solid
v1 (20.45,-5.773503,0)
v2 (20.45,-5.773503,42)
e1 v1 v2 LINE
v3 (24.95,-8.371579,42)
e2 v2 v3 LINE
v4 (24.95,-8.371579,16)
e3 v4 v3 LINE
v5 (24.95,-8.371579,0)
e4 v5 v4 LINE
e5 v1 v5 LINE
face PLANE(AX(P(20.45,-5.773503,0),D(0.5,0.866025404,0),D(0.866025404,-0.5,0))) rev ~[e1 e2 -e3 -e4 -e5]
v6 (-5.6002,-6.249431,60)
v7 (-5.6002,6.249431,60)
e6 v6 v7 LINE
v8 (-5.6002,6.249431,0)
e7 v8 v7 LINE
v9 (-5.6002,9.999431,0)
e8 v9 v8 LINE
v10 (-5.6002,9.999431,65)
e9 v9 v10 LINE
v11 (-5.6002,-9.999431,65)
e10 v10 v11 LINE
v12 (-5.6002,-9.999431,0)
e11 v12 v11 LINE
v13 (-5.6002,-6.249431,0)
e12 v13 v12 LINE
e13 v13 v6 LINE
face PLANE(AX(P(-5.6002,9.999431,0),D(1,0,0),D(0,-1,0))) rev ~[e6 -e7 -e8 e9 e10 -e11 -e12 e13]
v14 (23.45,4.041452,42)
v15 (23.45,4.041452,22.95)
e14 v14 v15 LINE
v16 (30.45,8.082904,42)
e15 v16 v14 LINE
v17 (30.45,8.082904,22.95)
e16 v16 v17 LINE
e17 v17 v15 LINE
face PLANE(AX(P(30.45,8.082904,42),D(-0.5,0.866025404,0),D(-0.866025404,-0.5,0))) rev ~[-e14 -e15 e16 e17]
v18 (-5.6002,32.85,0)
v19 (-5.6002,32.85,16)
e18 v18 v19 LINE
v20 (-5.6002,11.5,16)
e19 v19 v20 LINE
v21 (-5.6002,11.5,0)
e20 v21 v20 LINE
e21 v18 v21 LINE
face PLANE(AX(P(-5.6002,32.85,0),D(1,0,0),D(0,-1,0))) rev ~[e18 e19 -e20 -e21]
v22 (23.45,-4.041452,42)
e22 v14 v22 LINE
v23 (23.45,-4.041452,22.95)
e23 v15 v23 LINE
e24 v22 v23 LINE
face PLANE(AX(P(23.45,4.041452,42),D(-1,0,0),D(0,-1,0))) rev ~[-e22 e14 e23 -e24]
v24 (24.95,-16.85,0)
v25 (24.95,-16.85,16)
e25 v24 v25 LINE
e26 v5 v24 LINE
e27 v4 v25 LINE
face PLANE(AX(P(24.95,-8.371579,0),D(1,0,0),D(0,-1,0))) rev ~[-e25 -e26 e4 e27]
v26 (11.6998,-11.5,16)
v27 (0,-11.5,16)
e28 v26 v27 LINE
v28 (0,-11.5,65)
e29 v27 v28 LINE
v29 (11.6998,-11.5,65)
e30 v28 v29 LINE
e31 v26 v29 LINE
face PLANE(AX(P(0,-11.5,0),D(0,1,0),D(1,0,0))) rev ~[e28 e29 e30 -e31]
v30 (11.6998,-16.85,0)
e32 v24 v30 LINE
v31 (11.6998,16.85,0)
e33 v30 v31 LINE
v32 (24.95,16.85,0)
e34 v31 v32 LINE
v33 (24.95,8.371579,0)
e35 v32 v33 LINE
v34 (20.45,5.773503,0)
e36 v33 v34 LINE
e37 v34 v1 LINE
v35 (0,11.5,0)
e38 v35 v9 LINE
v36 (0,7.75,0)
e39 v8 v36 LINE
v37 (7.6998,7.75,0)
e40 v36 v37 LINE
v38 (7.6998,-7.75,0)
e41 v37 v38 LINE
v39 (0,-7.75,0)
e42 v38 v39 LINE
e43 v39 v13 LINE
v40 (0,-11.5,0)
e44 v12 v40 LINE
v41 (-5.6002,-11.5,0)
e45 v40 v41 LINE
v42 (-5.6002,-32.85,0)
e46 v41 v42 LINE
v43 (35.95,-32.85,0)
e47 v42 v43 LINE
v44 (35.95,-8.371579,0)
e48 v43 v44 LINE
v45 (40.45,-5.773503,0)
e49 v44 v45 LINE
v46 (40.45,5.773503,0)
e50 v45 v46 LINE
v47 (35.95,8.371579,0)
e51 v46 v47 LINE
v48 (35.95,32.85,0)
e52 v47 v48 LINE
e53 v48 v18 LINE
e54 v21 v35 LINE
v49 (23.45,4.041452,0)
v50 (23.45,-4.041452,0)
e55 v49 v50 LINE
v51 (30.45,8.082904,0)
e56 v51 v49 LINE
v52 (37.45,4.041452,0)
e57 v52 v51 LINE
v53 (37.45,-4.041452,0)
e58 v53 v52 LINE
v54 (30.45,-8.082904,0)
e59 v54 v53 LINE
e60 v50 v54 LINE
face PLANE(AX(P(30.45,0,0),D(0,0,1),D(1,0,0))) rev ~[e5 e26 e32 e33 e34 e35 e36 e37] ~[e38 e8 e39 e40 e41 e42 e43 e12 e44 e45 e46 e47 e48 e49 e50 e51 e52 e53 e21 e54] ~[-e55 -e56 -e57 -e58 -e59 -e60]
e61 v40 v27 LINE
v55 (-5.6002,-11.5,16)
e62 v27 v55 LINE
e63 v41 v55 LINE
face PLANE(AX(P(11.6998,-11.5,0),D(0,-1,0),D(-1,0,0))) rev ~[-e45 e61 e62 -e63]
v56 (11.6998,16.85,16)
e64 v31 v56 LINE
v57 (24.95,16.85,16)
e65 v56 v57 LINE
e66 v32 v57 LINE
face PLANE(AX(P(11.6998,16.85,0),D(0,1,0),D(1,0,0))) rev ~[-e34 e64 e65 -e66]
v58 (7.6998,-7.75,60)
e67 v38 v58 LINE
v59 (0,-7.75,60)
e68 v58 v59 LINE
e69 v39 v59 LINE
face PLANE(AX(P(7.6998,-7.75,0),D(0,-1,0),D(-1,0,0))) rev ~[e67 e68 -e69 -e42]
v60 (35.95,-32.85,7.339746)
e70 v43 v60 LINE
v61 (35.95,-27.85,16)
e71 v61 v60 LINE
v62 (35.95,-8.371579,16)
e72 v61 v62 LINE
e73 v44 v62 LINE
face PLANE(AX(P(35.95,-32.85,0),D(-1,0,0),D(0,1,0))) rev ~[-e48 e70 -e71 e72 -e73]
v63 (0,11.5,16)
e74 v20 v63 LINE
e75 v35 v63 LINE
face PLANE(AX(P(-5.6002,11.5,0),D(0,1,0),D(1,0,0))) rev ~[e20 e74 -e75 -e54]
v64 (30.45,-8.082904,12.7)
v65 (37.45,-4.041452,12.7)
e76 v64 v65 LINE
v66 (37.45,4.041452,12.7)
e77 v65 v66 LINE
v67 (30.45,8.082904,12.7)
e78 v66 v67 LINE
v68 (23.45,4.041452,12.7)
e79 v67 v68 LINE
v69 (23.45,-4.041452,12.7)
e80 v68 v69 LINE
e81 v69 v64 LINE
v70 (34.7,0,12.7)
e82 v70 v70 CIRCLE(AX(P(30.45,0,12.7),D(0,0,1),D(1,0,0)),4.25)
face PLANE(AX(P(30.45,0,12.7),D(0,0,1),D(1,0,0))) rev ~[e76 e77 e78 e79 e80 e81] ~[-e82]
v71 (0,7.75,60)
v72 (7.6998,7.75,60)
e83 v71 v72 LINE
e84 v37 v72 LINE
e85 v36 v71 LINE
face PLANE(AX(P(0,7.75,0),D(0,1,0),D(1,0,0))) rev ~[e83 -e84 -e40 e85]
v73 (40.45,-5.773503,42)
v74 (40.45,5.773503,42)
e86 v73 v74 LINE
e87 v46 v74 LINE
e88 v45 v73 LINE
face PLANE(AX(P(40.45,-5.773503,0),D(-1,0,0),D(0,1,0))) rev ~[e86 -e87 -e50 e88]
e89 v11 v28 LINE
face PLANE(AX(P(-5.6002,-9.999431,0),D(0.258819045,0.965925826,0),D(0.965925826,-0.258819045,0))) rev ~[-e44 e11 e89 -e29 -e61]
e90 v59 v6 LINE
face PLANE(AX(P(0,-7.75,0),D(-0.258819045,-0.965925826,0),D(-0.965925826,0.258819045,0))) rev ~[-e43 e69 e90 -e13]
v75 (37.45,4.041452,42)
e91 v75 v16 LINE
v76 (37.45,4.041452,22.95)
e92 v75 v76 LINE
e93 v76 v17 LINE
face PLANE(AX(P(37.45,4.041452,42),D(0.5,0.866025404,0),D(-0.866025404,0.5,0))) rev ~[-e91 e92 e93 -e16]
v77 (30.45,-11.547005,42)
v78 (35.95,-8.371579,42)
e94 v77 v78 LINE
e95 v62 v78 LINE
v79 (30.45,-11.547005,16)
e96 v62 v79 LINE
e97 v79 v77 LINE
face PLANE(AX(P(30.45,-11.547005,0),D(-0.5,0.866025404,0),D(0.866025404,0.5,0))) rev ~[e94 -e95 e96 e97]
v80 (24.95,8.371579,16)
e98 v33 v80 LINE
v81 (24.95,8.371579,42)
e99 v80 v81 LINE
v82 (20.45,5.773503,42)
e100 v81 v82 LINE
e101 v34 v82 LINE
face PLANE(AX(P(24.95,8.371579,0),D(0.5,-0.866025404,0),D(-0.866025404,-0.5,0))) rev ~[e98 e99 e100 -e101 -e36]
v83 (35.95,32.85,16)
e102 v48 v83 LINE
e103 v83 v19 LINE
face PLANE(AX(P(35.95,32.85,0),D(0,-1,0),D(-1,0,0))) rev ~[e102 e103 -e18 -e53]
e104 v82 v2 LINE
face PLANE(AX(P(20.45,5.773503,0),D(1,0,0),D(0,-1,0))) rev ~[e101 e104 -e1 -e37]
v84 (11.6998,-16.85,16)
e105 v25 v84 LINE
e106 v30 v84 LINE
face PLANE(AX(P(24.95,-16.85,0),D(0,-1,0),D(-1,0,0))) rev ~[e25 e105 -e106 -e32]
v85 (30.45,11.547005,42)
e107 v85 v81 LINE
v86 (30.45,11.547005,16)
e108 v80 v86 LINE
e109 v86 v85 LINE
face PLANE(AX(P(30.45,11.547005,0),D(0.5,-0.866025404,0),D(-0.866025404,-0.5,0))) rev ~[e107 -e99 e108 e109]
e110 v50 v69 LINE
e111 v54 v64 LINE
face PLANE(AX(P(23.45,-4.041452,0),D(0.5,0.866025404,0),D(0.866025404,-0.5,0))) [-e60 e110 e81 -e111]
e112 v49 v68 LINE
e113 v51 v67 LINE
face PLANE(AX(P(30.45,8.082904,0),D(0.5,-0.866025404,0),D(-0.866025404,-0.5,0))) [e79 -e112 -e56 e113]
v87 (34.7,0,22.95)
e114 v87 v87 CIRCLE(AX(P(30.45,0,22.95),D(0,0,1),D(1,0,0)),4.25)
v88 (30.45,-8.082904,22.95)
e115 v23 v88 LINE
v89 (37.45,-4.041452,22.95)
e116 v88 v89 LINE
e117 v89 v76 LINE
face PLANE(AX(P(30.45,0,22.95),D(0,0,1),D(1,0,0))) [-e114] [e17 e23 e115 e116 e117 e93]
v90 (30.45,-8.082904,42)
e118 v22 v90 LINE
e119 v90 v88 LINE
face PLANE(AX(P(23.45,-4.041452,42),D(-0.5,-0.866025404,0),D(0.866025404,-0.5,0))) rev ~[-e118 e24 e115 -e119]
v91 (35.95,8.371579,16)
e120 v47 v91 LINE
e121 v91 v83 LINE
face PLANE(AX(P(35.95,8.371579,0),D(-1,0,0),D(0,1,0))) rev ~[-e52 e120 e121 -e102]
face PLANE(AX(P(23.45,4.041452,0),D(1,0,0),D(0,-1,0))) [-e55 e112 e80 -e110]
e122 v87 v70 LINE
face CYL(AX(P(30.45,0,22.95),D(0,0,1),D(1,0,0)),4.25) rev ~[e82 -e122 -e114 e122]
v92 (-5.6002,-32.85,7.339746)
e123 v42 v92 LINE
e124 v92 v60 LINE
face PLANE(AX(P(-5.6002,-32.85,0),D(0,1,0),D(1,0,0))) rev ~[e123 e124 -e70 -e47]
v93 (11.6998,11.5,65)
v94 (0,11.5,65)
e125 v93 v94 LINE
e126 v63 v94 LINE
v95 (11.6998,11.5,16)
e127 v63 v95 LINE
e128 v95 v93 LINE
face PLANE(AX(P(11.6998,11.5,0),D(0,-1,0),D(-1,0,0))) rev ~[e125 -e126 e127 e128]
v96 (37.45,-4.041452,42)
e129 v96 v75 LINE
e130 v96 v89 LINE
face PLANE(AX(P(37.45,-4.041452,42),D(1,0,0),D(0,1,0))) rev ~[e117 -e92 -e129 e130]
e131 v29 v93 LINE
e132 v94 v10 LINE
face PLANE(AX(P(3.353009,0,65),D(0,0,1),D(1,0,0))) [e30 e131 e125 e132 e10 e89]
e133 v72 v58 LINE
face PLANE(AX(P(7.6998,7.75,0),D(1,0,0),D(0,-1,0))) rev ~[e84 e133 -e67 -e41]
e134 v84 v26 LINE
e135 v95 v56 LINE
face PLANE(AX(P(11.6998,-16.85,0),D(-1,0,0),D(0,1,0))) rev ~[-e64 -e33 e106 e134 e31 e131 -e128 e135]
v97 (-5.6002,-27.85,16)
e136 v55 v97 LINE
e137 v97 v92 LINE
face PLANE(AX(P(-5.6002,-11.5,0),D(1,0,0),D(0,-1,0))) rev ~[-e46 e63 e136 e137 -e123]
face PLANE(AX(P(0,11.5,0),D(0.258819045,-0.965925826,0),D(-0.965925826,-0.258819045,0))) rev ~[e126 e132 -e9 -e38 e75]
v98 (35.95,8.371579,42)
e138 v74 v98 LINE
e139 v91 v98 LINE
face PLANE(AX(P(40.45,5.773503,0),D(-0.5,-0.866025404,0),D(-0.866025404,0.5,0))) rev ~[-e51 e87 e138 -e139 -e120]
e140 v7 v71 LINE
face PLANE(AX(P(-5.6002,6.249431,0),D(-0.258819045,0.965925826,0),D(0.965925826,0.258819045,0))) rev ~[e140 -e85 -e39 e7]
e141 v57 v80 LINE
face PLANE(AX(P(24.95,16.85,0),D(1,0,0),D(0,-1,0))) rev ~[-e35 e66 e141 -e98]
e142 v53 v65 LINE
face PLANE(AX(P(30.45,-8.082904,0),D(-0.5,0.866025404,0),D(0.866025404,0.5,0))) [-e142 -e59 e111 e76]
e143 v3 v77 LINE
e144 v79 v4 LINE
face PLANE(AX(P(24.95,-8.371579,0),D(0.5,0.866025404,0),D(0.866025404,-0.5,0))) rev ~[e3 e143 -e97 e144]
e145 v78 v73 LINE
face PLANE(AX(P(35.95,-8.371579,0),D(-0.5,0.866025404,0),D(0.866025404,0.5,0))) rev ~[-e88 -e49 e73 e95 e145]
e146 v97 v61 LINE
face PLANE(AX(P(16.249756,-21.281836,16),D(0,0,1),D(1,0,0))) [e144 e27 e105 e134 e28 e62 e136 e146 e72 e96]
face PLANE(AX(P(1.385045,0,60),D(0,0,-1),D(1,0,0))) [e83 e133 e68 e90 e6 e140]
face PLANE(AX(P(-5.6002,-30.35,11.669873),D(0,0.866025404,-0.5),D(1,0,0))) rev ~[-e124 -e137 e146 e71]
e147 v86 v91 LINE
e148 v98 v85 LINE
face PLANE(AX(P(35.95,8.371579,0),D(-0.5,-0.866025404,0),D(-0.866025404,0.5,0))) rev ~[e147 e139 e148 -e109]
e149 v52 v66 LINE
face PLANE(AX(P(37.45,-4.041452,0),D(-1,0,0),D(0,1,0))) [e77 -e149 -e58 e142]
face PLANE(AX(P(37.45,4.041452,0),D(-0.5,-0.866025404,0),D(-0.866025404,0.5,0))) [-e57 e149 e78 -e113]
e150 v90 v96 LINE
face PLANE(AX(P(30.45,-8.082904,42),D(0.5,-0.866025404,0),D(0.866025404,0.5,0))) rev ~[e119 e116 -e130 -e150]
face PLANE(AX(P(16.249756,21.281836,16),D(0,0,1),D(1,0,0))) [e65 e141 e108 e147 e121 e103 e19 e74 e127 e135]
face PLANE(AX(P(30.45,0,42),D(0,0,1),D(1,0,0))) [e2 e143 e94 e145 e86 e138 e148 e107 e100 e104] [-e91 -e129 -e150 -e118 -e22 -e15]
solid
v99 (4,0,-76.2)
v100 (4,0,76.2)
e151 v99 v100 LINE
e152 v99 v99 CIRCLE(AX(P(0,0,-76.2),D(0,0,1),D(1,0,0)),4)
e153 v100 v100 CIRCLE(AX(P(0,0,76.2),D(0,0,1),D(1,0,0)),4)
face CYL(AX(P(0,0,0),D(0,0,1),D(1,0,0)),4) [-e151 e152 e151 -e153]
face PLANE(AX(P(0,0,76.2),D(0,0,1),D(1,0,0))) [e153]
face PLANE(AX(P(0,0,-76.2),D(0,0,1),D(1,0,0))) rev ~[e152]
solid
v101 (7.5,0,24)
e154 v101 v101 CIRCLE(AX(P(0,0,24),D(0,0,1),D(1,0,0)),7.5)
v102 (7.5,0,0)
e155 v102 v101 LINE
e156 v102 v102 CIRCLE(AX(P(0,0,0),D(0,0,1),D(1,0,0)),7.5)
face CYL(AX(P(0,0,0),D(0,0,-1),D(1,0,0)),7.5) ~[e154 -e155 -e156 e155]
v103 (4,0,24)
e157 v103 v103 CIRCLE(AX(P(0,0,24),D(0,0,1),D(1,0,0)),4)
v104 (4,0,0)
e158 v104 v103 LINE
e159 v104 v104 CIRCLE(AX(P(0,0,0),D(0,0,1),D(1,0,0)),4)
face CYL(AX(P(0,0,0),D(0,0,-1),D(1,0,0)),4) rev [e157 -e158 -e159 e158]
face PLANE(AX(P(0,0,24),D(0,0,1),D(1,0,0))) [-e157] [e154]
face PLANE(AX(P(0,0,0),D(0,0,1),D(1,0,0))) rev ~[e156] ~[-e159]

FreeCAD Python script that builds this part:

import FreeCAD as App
import Part
import Sketcher
from FreeCAD import Vector
Q = App.Units.Quantity


def edges_at(feature, points):
    """Names of the edges that pass closest to the given points."""
    edges = feature.Shape.Edges
    near = lambda p: min(range(len(edges)), key=lambda i: edges[i].distToShape(Part.Vertex(*p))[0])
    return sorted({f"Edge{near(p) + 1}" for p in points})


def add_polygon(sketch, points):
    """Adds a closed chain of lines whose ends are joined by coincident constraints."""
    first, n = sketch.GeometryCount, len(points)
    for a, b in zip(points, points[1:] + points[:1]):
        sketch.addGeometry(Part.LineSegment(App.Vector(*a, 0), App.Vector(*b, 0)), False)
    for i in range(n):
        sketch.addConstraint(Sketcher.Constraint("Coincident", first + i, 2, first + (i + 1) % n, 1))

doc = App.newDocument("Part")
body = doc.addObject("PartDesign::Body", "Body")

sketch1 = body.newObject("Sketcher::SketchObject", "Sketch")
sketch1.AttachmentSupport = (doc.getObject("XY_Plane"), [""])
sketch1.MapMode = "FlatFace"
sketch1.addGeometry(Part.Circle(Vector(0, 0, 0), Vector(0, 0, 1), 4), False)
sketch1.addConstraint([
    Sketcher.Constraint("Coincident", 0, 3, -1, 1),
    Sketcher.Constraint("Diameter", 0, 8.0),
])
pad1 = body.newObject("PartDesign::Pad", "Pad")
pad1.Profile = sketch1
pad1.Length = 152.4
pad1.Midplane = True
body2 = doc.addObject("PartDesign::Body", "Body001")

sketch2 = body2.newObject("Sketcher::SketchObject", "Sketch001")
sketch2.AttachmentSupport = (doc.getObject("XY_Plane001"), [""])
sketch2.MapMode = "FlatFace"
sketch2.addGeometry([
    Part.Circle(Vector(0, 0, 0), Vector(0, 0, 1), 7.5),
    Part.Circle(Vector(0, 0, 0), Vector(0, 0, 1), 4),
], False)
sketch2.addConstraint([
    Sketcher.Constraint("Coincident", 0, 3, -1, 1),
    Sketcher.Constraint("Coincident", 1, 3, -1, 1),
    Sketcher.Constraint("Diameter", 0, 15.0),
    Sketcher.Constraint("Diameter", 1, 8.0),
])
pad2 = body2.newObject("PartDesign::Pad", "Pad001")
pad2.Profile = sketch2
pad2.Length = 24
body3 = doc.addObject("PartDesign::Body", "Body002")

sketch3 = body3.newObject("Sketcher::SketchObject", "Sketch002")
sketch3.AttachmentSupport = (doc.getObject("XY_Plane002"), [""])
sketch3.MapMode = "FlatFace"
add_polygon(sketch3, [(12, 12), (0, 12), (-6, 10), (-6, -10), (0, -12), (12, -12)])
sketch3.addConstraint([
    Sketcher.Constraint("Horizontal", 0),
    Sketcher.Constraint("Vertical", 2),
    Sketcher.Constraint("Horizontal", 4),
    Sketcher.Constraint("Vertical", 5),
    Sketcher.Constraint("Symmetric", 0, 2, 3, 2, -1, 1),
    Sketcher.Constraint("PointOnObject", 0, 2, -2),
    Sketcher.Constraint("Equal", 1, 3),
    Sketcher.Constraint("DistanceY", 5, 1, 5, 2, 23.0),
    Sketcher.Constraint("Angle", 1, Q("-165 deg")),
    Sketcher.Constraint("DistanceX", 2, 2, 4, 2, 17.3),
    Sketcher.Constraint("DistanceX", 0, 2, 0, 1, 11.6998),
])
pad3 = body3.newObject("PartDesign::Pad", "Pad002")
pad3.Profile = sketch3
pad3.Length = 65

sketch4 = body3.newObject("Sketcher::SketchObject", "Sketch003")
sketch4.AttachmentSupport = (doc.getObject("XY_Plane002"), [""])
sketch4.MapMode = "FlatFace"
add_polygon(sketch4, [(12, -17), (12, -12), (-6, -12), (-6, -33), (36, -33), (36, -8), (25, -8), (25, -17)])
add_polygon(sketch4, [(-6, 12), (12, 12), (12, 17), (25, 17), (25, 8), (36, 8), (36, 33), (-6, 33)])
sketch4.addConstraint([
    Sketcher.Constraint("Vertical", 0),
    Sketcher.Constraint("Horizontal", 1),
    Sketcher.Constraint("Vertical", 2),
    Sketcher.Constraint("Horizontal", 3),
    Sketcher.Constraint("Vertical", 4),
    Sketcher.Constraint("Horizontal", 5),
    Sketcher.Constraint("Vertical", 6),
    Sketcher.Constraint("Horizontal", 7),
    Sketcher.Constraint("Horizontal", 8),
    Sketcher.Constraint("Vertical", 9),
    Sketcher.Constraint("Horizontal", 10),
    Sketcher.Constraint("Vertical", 11),
    Sketcher.Constraint("Horizontal", 12),
    Sketcher.Constraint("Vertical", 13),
    Sketcher.Constraint("Horizontal", 14),
    Sketcher.Constraint("Vertical", 15),
    Sketcher.Constraint("Symmetric", 0, 2, 8, 2, -1),
    Sketcher.Constraint("Symmetric", 6, 2, 10, 2, -1),
    Sketcher.Constraint("Symmetric", 4, 2, 12, 2, -1),
    Sketcher.Constraint("Symmetric", 2, 2, 14, 2, -1),
    Sketcher.Constraint("DistanceX", 5, 2, 5, 1, 11.0),
    Sketcher.Constraint("DistanceX", 1, 2, 1, 1, 17.3),
    Sketcher.Constraint("DistanceY", 3, 2, 6, 2, 16.0),
    Sketcher.Constraint("DistanceY", 0, 2, 8, 2, 23.0),
    Sketcher.Constraint("DistanceY", 0, 1, 0, 2, 5.35),
    Sketcher.Constraint("DistanceX", -1, 1, 3, 2, 35.95),
    Sketcher.Constraint("DistanceX", 3, 1, 3, 2, 41.5502),
    Sketcher.Constraint("DistanceY", 4, 1, 4, 2, 24.478421),
])
pad4 = body3.newObject("PartDesign::Pad", "Pad003")
pad4.Profile = sketch4
pad4.Length = 16

sketch5 = body3.newObject("Sketcher::SketchObject", "Sketch004")
sketch5.AttachmentSupport = (doc.getObject("XY_Plane002"), [""])
sketch5.MapMode = "FlatFace"
add_polygon(sketch5, [(25, 8), (20, 6), (20, -6), (25, -8), (30, -12), (36, -8), (40, -6), (40, 6), (36, 8), (30, 12)])
sketch5.addConstraint([
    Sketcher.Constraint("Vertical", 1),
    Sketcher.Constraint("Vertical", 6),
    Sketcher.Constraint("Symmetric", 4, 2, 7, 2, -1),
    Sketcher.Constraint("Symmetric", 3, 2, 8, 2, -1),
    Sketcher.Constraint("Symmetric", 2, 2, 9, 2, -1),
    Sketcher.Constraint("Parallel", 2, 3),
    Sketcher.Constraint("Parallel", 0, 4),
    Sketcher.Constraint("Parallel", 4, 5),
    Sketcher.Constraint("Parallel", 3, 7),
    Sketcher.Constraint("Parallel", 7, 8),
    Sketcher.Constraint("Horizontal", 2, 2, 4, 2),
    Sketcher.Constraint("Horizontal", 1, 2, 5, 2),
    Sketcher.Constraint("Angle", 0, Q("-150 deg")),
    Sketcher.Constraint("DistanceX", 1, 2, 3, 2, 10.0),
    Sketcher.Constraint("DistanceX", 2, 2, 4, 2, 11.0),
    Sketcher.Constraint("DistanceX", -1, 1, 0, 2, 20.45),
    Sketcher.Constraint("DistanceY", 1, 2, 1, 1, 11.547005),
])
pad5 = body3.newObject("PartDesign::Pad", "Pad004")
pad5.Profile = sketch5
pad5.Length = 42

sketch6 = body3.newObject("Sketcher::SketchObject", "Sketch005")
sketch6.AttachmentSupport = (doc.getObject("XY_Plane002"), [""])
sketch6.MapMode = "FlatFace"
sketch6.AttachmentOffset = App.Placement(Vector(0, 0, 42), App.Rotation())
add_polygon(sketch6, [(30, -8), (37, -4), (37, 4), (30, 8), (23, 4), (23, -4)])
sketch6.addConstraint([
    Sketcher.Constraint("Vertical", 1),
    Sketcher.Constraint("Vertical", 4),
    Sketcher.Constraint("Symmetric", 2, 2, 5, 2, -1),
    Sketcher.Constraint("Parallel", 0, 3),
    Sketcher.Constraint("Parallel", 2, 5),
    Sketcher.Constraint("Horizontal", 1, 2, 3, 2),
    Sketcher.Constraint("Horizontal", 0, 2, 4, 2),
    Sketcher.Constraint("Angle", 0, Q("30 deg")),
    Sketcher.Constraint("DistanceX", 2, 2, 1, 2, 7.0),
    Sketcher.Constraint("DistanceX", -1, 1, 0, 2, 37.45),
    Sketcher.Constraint("DistanceY", 1, 1, 1, 2, 8.082904),
])
pocket1 = body3.newObject("PartDesign::Pocket", "Pocket")
pocket1.Profile = sketch6
pocket1.Length = 19.05

sketch7 = body3.newObject("Sketcher::SketchObject", "Sketch006")
sketch7.AttachmentSupport = (doc.getObject("XY_Plane002"), [""])
sketch7.MapMode = "FlatFace"
add_polygon(sketch7, [(37, 4), (30, 8), (23, 4), (23, -4), (30, -8), (37, -4)])
sketch7.addConstraint([
    Sketcher.Constraint("Vertical", 2),
    Sketcher.Constraint("Vertical", 5),
    Sketcher.Constraint("Symmetric", 0, 2, 3, 2, -1),
    Sketcher.Constraint("Parallel", 0, 3),
    Sketcher.Constraint("Parallel", 1, 4),
    Sketcher.Constraint("Horizontal", 2, 2, 4, 2),
    Sketcher.Constraint("Horizontal", 1, 2, 5, 2),
    Sketcher.Constraint("Angle", 0, Q("150 deg")),
    Sketcher.Constraint("DistanceX", 1, 2, 0, 2, 7.0),
    Sketcher.Constraint("DistanceX", -1, 1, 0, 2, 30.45),
    Sketcher.Constraint("DistanceY", 2, 2, 2, 1, 8.082904),
])
pocket2 = body3.newObject("PartDesign::Pocket", "Pocket001")
pocket2.Profile = sketch7
pocket2.Length = 12.7
pocket2.Reversed = True

sketch8 = body3.newObject("Sketcher::SketchObject", "Sketch007")
sketch8.AttachmentSupport = (doc.getObject("XY_Plane002"), [""])
sketch8.MapMode = "FlatFace"
sketch8.AttachmentOffset = App.Placement(Vector(0, 0, 22.95), App.Rotation())
sketch8.addGeometry(Part.Circle(Vector(30.4, 0, 0), Vector(0, 0, 1), 4.2), False)
sketch8.addConstraint([
    Sketcher.Constraint("PointOnObject", 0, 3, -1),
    Sketcher.Constraint("Diameter", 0, 8.5),
    Sketcher.Constraint("DistanceX", -1, 1, 0, 3, 30.45),
])
pocket3 = body3.newObject("PartDesign::Pocket", "Pocket002")
pocket3.Profile = sketch8
pocket3.Type = "ThroughAll"
doc.recompute()

chamfer = body3.newObject("PartDesign::Chamfer", "Chamfer")
chamfer.Base = (pocket3, edges_at(pocket3, [(15.175, -32.85, 16)]))
chamfer.ChamferType = "Two distances"
chamfer.Size = 5
chamfer.Size2 = 8.660254

sketch9 = body3.newObject("Sketcher::SketchObject", "Sketch008")
sketch9.AttachmentSupport = (doc.getObject("XY_Plane002"), [""])
sketch9.MapMode = "FlatFace"
add_polygon(sketch9, [(-6, -6), (-6, 6), (0, 8), (8, 8), (8, -8), (0, -8)])
sketch9.addConstraint([
    Sketcher.Constraint("Vertical", 0),
    Sketcher.Constraint("Horizontal", 2),
    Sketcher.Constraint("Vertical", 3),
    Sketcher.Constraint("Horizontal", 4),
    Sketcher.Constraint("Symmetric", 1, 2, 4, 2, -1, 1),
    Sketcher.Constraint("PointOnObject", 1, 2, -2),
    Sketcher.Constraint("Equal", 1, 5),
    Sketcher.Constraint("Angle", 1, Q("15 deg")),
    Sketcher.Constraint("DistanceY", 3, 2, 3, 1, 15.5),
    Sketcher.Constraint("DistanceX", 0, 2, 2, 2, 13.3),
    Sketcher.Constraint("DistanceX", 2, 1, 2, 2, 7.6998),
])
pocket4 = body3.newObject("PartDesign::Pocket", "Pocket003")
pocket4.Profile = sketch9
pocket4.Length = 60
pocket4.Reversed = True

doc.recompute()
